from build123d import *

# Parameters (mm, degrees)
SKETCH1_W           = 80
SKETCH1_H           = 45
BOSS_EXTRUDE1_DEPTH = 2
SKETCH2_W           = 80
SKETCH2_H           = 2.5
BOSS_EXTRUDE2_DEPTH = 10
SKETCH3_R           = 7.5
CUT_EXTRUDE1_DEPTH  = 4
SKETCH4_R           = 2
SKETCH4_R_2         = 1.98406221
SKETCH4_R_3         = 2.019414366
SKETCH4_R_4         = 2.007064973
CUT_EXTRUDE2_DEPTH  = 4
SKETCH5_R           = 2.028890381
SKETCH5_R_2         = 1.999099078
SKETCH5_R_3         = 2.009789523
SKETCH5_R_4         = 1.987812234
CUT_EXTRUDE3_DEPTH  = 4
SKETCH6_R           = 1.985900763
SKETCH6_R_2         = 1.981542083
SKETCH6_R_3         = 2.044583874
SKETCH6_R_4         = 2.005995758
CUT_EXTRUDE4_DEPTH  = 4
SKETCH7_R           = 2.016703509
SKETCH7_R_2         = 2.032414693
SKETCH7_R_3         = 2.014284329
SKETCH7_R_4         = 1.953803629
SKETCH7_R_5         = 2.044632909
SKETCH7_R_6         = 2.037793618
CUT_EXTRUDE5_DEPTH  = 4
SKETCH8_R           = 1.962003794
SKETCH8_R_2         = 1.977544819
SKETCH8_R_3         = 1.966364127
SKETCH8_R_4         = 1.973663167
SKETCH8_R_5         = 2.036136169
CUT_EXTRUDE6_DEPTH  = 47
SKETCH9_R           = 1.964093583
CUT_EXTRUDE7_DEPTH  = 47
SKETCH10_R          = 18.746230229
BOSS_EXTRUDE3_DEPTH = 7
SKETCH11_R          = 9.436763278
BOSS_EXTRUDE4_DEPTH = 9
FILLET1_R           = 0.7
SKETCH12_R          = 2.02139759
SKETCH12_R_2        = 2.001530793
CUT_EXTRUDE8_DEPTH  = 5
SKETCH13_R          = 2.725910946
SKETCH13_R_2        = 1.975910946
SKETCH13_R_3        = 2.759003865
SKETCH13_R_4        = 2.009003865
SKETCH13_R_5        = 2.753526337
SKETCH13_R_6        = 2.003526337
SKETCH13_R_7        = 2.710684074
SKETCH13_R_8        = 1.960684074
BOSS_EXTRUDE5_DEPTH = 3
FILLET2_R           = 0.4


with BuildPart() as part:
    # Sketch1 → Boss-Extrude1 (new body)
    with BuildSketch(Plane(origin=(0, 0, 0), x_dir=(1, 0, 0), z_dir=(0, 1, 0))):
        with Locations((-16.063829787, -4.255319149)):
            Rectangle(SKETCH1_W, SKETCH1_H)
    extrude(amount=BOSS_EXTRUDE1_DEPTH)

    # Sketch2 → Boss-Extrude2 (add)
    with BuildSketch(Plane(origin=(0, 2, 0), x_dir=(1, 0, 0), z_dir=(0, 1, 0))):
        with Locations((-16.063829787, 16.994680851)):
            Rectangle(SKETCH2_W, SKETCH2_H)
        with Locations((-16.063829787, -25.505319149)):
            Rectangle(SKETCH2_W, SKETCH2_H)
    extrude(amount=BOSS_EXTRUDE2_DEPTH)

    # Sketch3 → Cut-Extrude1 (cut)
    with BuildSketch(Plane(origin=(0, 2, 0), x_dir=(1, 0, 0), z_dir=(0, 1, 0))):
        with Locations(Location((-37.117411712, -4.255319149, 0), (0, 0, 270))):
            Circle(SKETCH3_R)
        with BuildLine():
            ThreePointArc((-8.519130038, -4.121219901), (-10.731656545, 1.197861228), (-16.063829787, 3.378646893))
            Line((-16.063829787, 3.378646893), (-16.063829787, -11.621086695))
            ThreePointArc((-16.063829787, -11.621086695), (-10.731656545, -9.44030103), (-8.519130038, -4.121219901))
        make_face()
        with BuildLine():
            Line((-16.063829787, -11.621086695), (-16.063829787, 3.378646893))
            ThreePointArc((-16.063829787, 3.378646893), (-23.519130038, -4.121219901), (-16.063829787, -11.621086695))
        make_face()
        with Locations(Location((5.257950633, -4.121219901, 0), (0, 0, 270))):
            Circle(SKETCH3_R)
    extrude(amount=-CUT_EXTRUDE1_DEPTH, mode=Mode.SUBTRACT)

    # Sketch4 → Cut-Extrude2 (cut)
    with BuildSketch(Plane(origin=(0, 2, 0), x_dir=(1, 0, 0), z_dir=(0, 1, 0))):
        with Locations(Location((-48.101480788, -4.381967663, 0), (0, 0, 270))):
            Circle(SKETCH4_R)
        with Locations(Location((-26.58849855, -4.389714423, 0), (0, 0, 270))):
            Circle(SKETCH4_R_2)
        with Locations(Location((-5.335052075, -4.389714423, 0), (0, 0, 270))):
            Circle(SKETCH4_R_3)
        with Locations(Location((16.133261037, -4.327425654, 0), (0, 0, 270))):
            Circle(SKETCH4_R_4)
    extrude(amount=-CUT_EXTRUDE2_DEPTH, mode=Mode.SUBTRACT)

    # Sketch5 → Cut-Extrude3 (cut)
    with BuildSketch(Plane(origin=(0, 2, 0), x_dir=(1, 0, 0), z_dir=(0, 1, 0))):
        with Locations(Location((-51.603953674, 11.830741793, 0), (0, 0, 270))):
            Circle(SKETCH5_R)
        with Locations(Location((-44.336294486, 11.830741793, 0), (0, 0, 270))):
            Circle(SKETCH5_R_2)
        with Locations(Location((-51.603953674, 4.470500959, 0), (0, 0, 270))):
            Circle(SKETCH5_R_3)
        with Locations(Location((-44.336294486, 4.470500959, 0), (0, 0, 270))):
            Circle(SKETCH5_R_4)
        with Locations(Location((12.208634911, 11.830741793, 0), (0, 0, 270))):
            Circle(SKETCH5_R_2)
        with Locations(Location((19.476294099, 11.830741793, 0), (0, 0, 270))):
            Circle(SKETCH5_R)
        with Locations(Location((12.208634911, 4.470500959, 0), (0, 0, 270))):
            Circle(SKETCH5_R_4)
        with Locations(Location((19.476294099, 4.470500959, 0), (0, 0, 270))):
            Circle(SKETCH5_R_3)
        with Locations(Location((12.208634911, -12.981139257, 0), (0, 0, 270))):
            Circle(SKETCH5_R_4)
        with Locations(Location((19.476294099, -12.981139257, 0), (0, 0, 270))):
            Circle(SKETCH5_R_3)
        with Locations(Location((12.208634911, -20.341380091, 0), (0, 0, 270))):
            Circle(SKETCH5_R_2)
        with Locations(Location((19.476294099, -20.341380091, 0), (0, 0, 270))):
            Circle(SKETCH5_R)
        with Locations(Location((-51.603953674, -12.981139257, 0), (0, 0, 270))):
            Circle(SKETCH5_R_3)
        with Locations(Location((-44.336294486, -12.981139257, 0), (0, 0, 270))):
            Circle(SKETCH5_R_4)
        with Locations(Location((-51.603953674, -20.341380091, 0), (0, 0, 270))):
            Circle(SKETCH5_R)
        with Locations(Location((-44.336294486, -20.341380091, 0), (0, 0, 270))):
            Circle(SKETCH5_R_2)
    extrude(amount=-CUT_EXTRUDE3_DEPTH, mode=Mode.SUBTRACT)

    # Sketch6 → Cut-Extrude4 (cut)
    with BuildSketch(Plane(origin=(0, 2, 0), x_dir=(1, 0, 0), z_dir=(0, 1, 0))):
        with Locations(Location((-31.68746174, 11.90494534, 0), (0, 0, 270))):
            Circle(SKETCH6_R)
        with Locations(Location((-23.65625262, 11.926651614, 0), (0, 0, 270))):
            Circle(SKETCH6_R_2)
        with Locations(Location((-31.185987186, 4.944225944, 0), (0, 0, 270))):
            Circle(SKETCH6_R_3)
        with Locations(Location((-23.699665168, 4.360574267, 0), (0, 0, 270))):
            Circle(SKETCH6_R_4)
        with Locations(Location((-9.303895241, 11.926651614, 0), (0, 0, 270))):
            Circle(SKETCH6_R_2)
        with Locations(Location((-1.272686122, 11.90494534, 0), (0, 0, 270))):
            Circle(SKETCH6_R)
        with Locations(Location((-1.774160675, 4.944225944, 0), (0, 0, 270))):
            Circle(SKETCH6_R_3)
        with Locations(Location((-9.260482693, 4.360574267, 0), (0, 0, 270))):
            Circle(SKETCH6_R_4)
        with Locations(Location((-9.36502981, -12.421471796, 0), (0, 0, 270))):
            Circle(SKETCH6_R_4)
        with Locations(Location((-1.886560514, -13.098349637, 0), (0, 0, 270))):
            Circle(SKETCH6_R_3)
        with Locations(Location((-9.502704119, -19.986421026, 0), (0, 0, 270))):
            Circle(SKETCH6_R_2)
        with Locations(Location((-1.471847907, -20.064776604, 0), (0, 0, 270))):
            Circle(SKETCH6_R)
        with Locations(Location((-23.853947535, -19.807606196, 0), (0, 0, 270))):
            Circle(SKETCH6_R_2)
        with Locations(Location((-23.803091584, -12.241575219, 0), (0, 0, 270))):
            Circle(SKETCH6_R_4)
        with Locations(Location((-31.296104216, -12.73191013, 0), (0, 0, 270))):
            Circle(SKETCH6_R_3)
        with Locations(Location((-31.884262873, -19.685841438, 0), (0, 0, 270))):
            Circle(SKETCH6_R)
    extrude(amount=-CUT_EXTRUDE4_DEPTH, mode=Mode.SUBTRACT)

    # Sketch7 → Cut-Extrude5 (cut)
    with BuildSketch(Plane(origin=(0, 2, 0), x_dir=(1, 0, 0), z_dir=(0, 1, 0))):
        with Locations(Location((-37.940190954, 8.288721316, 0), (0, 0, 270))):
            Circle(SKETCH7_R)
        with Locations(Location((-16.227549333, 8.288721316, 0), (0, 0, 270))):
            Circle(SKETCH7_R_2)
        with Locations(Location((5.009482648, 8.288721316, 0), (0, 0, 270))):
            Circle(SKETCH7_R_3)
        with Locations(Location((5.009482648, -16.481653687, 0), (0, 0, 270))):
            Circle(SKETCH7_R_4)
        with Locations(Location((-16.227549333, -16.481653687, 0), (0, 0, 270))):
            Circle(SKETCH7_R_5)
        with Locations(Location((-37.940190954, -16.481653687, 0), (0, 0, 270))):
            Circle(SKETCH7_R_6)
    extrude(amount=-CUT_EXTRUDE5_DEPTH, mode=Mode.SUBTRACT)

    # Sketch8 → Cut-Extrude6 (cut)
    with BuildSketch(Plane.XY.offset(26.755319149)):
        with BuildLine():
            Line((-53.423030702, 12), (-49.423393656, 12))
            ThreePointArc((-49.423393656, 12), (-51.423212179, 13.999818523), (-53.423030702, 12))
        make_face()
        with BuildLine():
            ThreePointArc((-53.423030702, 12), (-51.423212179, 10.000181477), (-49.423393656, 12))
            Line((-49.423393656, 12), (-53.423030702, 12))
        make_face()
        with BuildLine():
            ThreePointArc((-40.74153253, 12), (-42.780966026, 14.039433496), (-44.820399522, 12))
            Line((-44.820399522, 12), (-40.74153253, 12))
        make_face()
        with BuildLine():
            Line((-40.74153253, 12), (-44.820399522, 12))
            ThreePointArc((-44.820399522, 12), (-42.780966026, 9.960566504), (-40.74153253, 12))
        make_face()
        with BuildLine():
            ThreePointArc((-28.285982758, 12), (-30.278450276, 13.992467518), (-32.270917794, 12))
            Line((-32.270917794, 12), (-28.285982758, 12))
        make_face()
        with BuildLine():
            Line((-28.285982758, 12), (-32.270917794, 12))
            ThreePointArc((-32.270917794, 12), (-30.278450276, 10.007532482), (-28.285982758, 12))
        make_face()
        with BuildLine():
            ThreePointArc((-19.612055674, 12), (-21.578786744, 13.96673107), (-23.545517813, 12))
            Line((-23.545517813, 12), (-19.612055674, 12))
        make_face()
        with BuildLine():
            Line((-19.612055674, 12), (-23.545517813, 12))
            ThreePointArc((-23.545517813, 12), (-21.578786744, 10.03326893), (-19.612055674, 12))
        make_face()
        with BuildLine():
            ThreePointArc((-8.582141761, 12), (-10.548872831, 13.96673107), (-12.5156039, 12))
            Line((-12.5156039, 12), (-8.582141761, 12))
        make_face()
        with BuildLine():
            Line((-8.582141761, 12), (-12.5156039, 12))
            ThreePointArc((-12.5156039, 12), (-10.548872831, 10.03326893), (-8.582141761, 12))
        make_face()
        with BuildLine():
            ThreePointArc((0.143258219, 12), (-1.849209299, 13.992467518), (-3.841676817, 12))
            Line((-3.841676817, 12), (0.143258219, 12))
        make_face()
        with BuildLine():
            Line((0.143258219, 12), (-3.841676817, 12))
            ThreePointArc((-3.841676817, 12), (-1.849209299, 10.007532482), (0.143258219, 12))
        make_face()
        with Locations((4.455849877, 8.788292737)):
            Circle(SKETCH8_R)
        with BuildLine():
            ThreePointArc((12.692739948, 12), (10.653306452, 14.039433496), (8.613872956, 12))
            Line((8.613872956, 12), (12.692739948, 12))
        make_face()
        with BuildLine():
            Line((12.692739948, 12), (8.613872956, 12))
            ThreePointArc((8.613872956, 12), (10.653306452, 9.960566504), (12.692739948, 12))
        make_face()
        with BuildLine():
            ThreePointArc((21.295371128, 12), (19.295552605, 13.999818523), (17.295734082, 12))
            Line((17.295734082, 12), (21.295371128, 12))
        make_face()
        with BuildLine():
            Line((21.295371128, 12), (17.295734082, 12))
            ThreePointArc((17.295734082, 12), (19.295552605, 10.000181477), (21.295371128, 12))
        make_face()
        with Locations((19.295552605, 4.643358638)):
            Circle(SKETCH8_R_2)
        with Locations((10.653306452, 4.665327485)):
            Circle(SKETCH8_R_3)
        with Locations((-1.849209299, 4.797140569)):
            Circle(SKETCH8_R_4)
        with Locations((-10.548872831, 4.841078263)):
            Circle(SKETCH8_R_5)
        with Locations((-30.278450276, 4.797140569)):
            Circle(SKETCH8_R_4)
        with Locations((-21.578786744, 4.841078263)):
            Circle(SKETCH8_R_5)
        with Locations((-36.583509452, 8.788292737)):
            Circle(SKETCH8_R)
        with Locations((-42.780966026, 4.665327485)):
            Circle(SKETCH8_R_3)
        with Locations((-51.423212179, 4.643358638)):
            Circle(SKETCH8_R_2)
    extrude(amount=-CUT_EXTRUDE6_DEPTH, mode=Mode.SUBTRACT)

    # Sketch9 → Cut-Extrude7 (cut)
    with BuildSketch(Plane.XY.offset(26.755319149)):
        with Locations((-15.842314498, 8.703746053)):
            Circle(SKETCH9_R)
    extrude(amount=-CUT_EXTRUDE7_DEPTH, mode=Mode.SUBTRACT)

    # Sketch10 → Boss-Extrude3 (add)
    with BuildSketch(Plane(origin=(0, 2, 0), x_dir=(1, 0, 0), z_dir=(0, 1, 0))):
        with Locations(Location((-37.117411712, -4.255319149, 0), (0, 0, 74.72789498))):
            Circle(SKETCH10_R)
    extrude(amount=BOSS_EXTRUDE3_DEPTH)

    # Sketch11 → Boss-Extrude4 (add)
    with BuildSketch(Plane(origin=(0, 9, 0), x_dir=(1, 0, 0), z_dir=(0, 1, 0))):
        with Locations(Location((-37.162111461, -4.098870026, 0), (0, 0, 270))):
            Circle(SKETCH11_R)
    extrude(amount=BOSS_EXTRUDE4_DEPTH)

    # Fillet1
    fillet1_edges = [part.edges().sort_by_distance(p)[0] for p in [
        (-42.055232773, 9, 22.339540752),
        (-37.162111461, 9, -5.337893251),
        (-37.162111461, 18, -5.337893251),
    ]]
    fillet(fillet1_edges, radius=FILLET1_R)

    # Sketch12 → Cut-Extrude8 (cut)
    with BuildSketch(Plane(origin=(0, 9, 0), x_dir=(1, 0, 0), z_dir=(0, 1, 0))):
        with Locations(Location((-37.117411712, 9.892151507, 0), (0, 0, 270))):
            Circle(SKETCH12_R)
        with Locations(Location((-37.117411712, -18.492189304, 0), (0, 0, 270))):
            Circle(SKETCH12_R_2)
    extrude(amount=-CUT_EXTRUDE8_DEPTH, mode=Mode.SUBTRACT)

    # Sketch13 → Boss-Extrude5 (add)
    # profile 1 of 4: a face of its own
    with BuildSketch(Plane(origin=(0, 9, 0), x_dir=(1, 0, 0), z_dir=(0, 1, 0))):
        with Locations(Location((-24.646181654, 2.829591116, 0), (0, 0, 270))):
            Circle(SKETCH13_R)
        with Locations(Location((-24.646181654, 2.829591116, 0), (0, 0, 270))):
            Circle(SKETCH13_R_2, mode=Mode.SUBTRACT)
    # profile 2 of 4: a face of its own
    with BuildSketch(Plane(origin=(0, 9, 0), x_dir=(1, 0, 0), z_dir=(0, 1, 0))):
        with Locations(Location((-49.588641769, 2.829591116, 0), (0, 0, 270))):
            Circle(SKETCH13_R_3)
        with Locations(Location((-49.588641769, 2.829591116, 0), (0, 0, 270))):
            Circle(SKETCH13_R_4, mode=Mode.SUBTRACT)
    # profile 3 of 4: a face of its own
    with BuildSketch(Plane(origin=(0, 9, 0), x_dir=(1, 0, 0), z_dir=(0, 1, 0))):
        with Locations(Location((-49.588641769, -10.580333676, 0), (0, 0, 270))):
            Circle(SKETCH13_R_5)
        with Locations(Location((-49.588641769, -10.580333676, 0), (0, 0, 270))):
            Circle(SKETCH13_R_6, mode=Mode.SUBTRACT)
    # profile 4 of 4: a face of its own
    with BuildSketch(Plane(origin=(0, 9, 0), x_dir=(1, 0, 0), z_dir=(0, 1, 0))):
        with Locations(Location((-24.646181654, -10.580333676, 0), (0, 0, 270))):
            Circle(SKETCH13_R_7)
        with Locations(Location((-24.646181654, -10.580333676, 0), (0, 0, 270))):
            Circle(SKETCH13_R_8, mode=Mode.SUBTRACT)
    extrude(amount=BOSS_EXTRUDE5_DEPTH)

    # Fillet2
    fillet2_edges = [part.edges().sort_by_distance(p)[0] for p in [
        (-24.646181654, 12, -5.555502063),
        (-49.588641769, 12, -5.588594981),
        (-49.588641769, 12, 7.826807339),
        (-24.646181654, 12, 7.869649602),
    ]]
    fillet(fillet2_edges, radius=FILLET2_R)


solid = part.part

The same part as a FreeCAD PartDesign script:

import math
import FreeCAD as App
import Part
import Sketcher


def edges_at(feature, points):
    """Names of the edges that pass closest to the given points."""
    edges = feature.Shape.Edges
    near = lambda p: min(range(len(edges)), key=lambda i: edges[i].distToShape(Part.Vertex(*p))[0])
    return sorted({f"Edge{near(p) + 1}" for p in points})


def add_polygon(sketch, points):
    """Adds a closed chain of lines whose ends are joined by coincident constraints."""
    first, n = sketch.GeometryCount, len(points)
    for a, b in zip(points, points[1:] + points[:1]):
        sketch.addGeometry(Part.LineSegment(App.Vector(*a, 0), App.Vector(*b, 0)), False)
    for i in range(n):
        sketch.addConstraint(Sketcher.Constraint("Coincident", first + i, 2, first + (i + 1) % n, 1))

doc = App.newDocument("Part")
params = doc.addObject("Spreadsheet::Sheet", "Params")
for row, (alias, value) in enumerate([
    ("sketch1_width", "80 mm"),
    ("sketch1_height", "45 mm"),
    ("pad1_length", "2 mm"),
    ("sketch2_width", "80 mm"),
    ("sketch2_height", "2.5 mm"),
    ("pad2_length", "10 mm"),
    ("sketch3_diameter", "15 mm"),
    ("pocket1_length", "4 mm"),
    ("sketch4_diameter", "4 mm"),
    ("pocket2_length", "4 mm"),
    ("pocket3_length", "4 mm"),
    ("pocket4_length", "4 mm"),
    ("pocket5_length", "4 mm"),
    ("pocket6_length", "47 mm"),
    ("pocket7_length", "47 mm"),
    ("pad3_length", "7 mm"),
    ("pad4_length", "9 mm"),
    ("fillet_radius", "0.7 mm"),
    ("pocket8_length", "5 mm"),
    ("pad5_length", "3 mm"),
    ("fillet2_radius", "0.4 mm"),
], start=1):
    params.set(f"A{row}", alias)
    params.set(f"B{row}", "=" + value)
    params.setAlias(f"B{row}", alias)

body = doc.addObject("PartDesign::Body", "Body")

# Sketch on XZ plane
sketch1 = doc.addObject("Sketcher::SketchObject", "Sketch")
body.addObject(sketch1)
sketch1.AttachmentSupport = (doc.XZ_Plane, [""])
sketch1.MapMode = "FlatFace"
add_polygon(sketch1, [(-56, -18), (-56, 27), (24, 27), (24, -18)])  # lines 0-3
sketch1.addConstraint(Sketcher.Constraint("Vertical", 0))
sketch1.addConstraint(Sketcher.Constraint("Horizontal", 1))
sketch1.addConstraint(Sketcher.Constraint("Vertical", 2))
sketch1.addConstraint(Sketcher.Constraint("Horizontal", 3))
sketch1.addConstraint(Sketcher.Constraint("DistanceX", 1, 1, 1, 2, 80.0))
sketch1.addConstraint(Sketcher.Constraint("DistanceY", 0, 1, 0, 2, 45.0))
sketch1.addConstraint(Sketcher.Constraint("DistanceX", 0, 2, -1, 1, 56.06383))
sketch1.addConstraint(Sketcher.Constraint("DistanceY", -1, 1, 0, 2, 26.755319))
sketch1.setExpression("Constraints[8]", "Params.sketch1_width")
sketch1.setExpression("Constraints[9]", "Params.sketch1_height")
pad1 = doc.addObject("PartDesign::Pad", "Pad")
body.addObject(pad1)
pad1.Profile = sketch1
pad1.setExpression("Length", "Params.pad1_length")
pad1.Reversed = True

# Sketch on XZ plane
sketch2 = doc.addObject("Sketcher::SketchObject", "Sketch001")
body.addObject(sketch2)
sketch2.AttachmentSupport = (doc.XZ_Plane, [""])
sketch2.MapMode = "FlatFace"
sketch2.AttachmentOffset = App.Placement(App.Vector(0, 0, -2), App.Rotation())
add_polygon(sketch2, [(-56.1, -18.2), (-56.1, -15.7), (23.9, -15.7), (23.9, -18.2)])  # lines 0-3
add_polygon(sketch2, [(-56.1, 24.3), (-56.1, 26.8), (23.9, 26.8), (23.9, 24.3)])  # lines 4-7
sketch2.addConstraint(Sketcher.Constraint("Vertical", 0))
sketch2.addConstraint(Sketcher.Constraint("Horizontal", 1))
sketch2.addConstraint(Sketcher.Constraint("Vertical", 2))
sketch2.addConstraint(Sketcher.Constraint("Horizontal", 3))
sketch2.addConstraint(Sketcher.Constraint("Vertical", 4))
sketch2.addConstraint(Sketcher.Constraint("Horizontal", 5))
sketch2.addConstraint(Sketcher.Constraint("Vertical", 6))
sketch2.addConstraint(Sketcher.Constraint("Horizontal", 7))
sketch2.addConstraint(Sketcher.Constraint("Vertical", 3, 2, 4, 2))
sketch2.addConstraint(Sketcher.Constraint("Vertical", 2, 2, 5, 2))
sketch2.addConstraint(Sketcher.Constraint("Equal", 2, 4))
sketch2.addConstraint(Sketcher.Constraint("DistanceX", 1, 1, 1, 2, 80.0))
sketch2.addConstraint(Sketcher.Constraint("DistanceY", 0, 1, 0, 2, 2.5))
sketch2.addConstraint(Sketcher.Constraint("DistanceY", 3, 2, 4, 2, 45.0))
sketch2.addConstraint(Sketcher.Constraint("DistanceX", 0, 2, -1, 1, 56.06383))
sketch2.addConstraint(Sketcher.Constraint("DistanceY", 0, 2, -1, 1, 15.744681))
sketch2.setExpression("Constraints[19]", "Params.sketch2_width")
sketch2.setExpression("Constraints[20]", "Params.sketch2_height")
pad2 = doc.addObject("PartDesign::Pad", "Pad001")
body.addObject(pad2)
pad2.Profile = sketch2
pad2.setExpression("Length", "Params.pad2_length")
pad2.Reversed = True

# Sketch on XZ plane
sketch3 = doc.addObject("Sketcher::SketchObject", "Sketch002")
body.addObject(sketch3)
sketch3.AttachmentSupport = (doc.XZ_Plane, [""])
sketch3.MapMode = "FlatFace"
sketch3.AttachmentOffset = App.Placement(App.Vector(0, 0, -2), App.Rotation())
sketch3.addGeometry(Part.Circle(App.Vector(-37, 4, 0), App.Vector(0, 0, 1), 8), False)
sketch3.addGeometry(Part.ArcOfCircle(Part.Circle(App.Vector(-16, 4, 0), App.Vector(0, 0, 1), 8), math.radians(-90), math.radians(0)), False)
sketch3.addGeometry(Part.ArcOfCircle(Part.Circle(App.Vector(-16, 4, 0), App.Vector(0, 0, 1), 8), math.radians(90), math.radians(270)), False)
sketch3.addGeometry(Part.ArcOfCircle(Part.Circle(App.Vector(-16, 4, 0), App.Vector(0, 0, 1), 8), math.radians(0), math.radians(90)), False)
sketch3.addGeometry(Part.Circle(App.Vector(5, 4, 0), App.Vector(0, 0, 1), 8), False)
sketch3.addConstraint(Sketcher.Constraint("Tangent", 1, 1, 2, 2))
sketch3.addConstraint(Sketcher.Constraint("Tangent", 2, 1, 3, 2))
sketch3.addConstraint(Sketcher.Constraint("Tangent", 3, 1, 1, 2))
sketch3.addConstraint(Sketcher.Constraint("Equal", 0, 1))
sketch3.addConstraint(Sketcher.Constraint("Equal", 3, 4))
sketch3.addConstraint(Sketcher.Constraint("Horizontal", 3, 3, 4, 3))
sketch3.addConstraint(Sketcher.Constraint("Horizontal", 4, 3, 3, 1))
sketch3.addConstraint(Sketcher.Constraint("Vertical", 1, 1, 2, 1))
sketch3.addConstraint(Sketcher.Constraint("Diameter", 0, 15.0))
sketch3.addConstraint(Sketcher.Constraint("DistanceY", 1, 3, 0, 3, 0.134099))
sketch3.addConstraint(Sketcher.Constraint("DistanceX", 1, 1, 1, 3, 0.0447))
sketch3.addConstraint(Sketcher.Constraint("DistanceX", 0, 3, -1, 1, 37.117412))
sketch3.addConstraint(Sketcher.Constraint("DistanceY", -1, 1, 0, 3, 4.255319))
sketch3.addConstraint(Sketcher.Constraint("DistanceX", 1, 3, -1, 1, 16.01913))
sketch3.addConstraint(Sketcher.Constraint("DistanceX", -1, 1, 4, 3, 5.257951))
sketch3.setExpression("Constraints[8]", "Params.sketch3_diameter")
pocket1 = doc.addObject("PartDesign::Pocket", "Pocket")
body.addObject(pocket1)
pocket1.Profile = sketch3
pocket1.setExpression("Length", "Params.pocket1_length")
pocket1.Reversed = True

# Sketch on XZ plane
sketch4 = doc.addObject("Sketcher::SketchObject", "Sketch003")
body.addObject(sketch4)
sketch4.AttachmentSupport = (doc.XZ_Plane, [""])
sketch4.MapMode = "FlatFace"
sketch4.AttachmentOffset = App.Placement(App.Vector(0, 0, -2), App.Rotation())
sketch4.addGeometry(Part.Circle(App.Vector(-48.1, 4.4, 0), App.Vector(0, 0, 1), 2), False)
sketch4.addGeometry(Part.Circle(App.Vector(-26.6, 4.4, 0), App.Vector(0, 0, 1), 2), False)
sketch4.addGeometry(Part.Circle(App.Vector(-5.3, 4.4, 0), App.Vector(0, 0, 1), 2), False)
sketch4.addGeometry(Part.Circle(App.Vector(16.1, 4.3, 0), App.Vector(0, 0, 1), 2), False)
sketch4.addConstraint(Sketcher.Constraint("Horizontal", 1, 3, 2, 3))
sketch4.addConstraint(Sketcher.Constraint("Diameter", 0, 4.0))
sketch4.addConstraint(Sketcher.Constraint("Diameter", 2, 4.038829))
sketch4.addConstraint(Sketcher.Constraint("Diameter", 3, 4.01413))
sketch4.addConstraint(Sketcher.Constraint("Diameter", 1, 3.968124))
sketch4.addConstraint(Sketcher.Constraint("DistanceX", 1, 3, -1, 1, 26.588499))
sketch4.addConstraint(Sketcher.Constraint("DistanceX", 0, 3, -1, 1, 48.101481))
sketch4.addConstraint(Sketcher.Constraint("DistanceX", -1, 1, 3, 3, 16.133261))
sketch4.addConstraint(Sketcher.Constraint("DistanceX", 0, 3, 2, 3, 42.766429))
sketch4.addConstraint(Sketcher.Constraint("DistanceY", 3, 3, 2, 3, 0.062289))
sketch4.addConstraint(Sketcher.Constraint("DistanceY", -1, 1, 0, 3, 4.381968))
sketch4.addConstraint(Sketcher.Constraint("DistanceY", -1, 1, 1, 3, 4.389714))
sketch4.setExpression("Constraints[1]", "Params.sketch4_diameter")
pocket2 = doc.addObject("PartDesign::Pocket", "Pocket001")
body.addObject(pocket2)
pocket2.Profile = sketch4
pocket2.setExpression("Length", "Params.pocket2_length")
pocket2.Reversed = True

# Sketch on XZ plane
sketch5 = doc.addObject("Sketcher::SketchObject", "Sketch004")
body.addObject(sketch5)
sketch5.AttachmentSupport = (doc.XZ_Plane, [""])
sketch5.MapMode = "FlatFace"
sketch5.AttachmentOffset = App.Placement(App.Vector(0, 0, -2), App.Rotation())
sketch5.addGeometry(Part.Circle(App.Vector(-51.6, -11.8, 0), App.Vector(0, 0, 1), 2), False)
sketch5.addGeometry(Part.Circle(App.Vector(-44.3, -11.8, 0), App.Vector(0, 0, 1), 2), False)
sketch5.addGeometry(Part.Circle(App.Vector(-51.6, -4.5, 0), App.Vector(0, 0, 1), 2), False)
sketch5.addGeometry(Part.Circle(App.Vector(-44.3, -4.5, 0), App.Vector(0, 0, 1), 2), False)
sketch5.addGeometry(Part.Circle(App.Vector(12.2, -11.8, 0), App.Vector(0, 0, 1), 2), False)
sketch5.addGeometry(Part.Circle(App.Vector(19.5, -11.8, 0), App.Vector(0, 0, 1), 2), False)
sketch5.addGeometry(Part.Circle(App.Vector(12.2, -4.5, 0), App.Vector(0, 0, 1), 2), False)
sketch5.addGeometry(Part.Circle(App.Vector(19.5, -4.5, 0), App.Vector(0, 0, 1), 2), False)
sketch5.addGeometry(Part.Circle(App.Vector(12.2, 13, 0), App.Vector(0, 0, 1), 2), False)
sketch5.addGeometry(Part.Circle(App.Vector(19.5, 13, 0), App.Vector(0, 0, 1), 2), False)
sketch5.addGeometry(Part.Circle(App.Vector(12.2, 20.3, 0), App.Vector(0, 0, 1), 2), False)
sketch5.addGeometry(Part.Circle(App.Vector(19.5, 20.3, 0), App.Vector(0, 0, 1), 2), False)
sketch5.addGeometry(Part.Circle(App.Vector(-51.6, 13, 0), App.Vector(0, 0, 1), 2), False)
sketch5.addGeometry(Part.Circle(App.Vector(-44.3, 13, 0), App.Vector(0, 0, 1), 2), False)
sketch5.addGeometry(Part.Circle(App.Vector(-51.6, 20.3, 0), App.Vector(0, 0, 1), 2), False)
sketch5.addGeometry(Part.Circle(App.Vector(-44.3, 20.3, 0), App.Vector(0, 0, 1), 2), False)
sketch5.addConstraint(Sketcher.Constraint("Equal", 1, 4))
sketch5.addConstraint(Sketcher.Constraint("Equal", 0, 5))
sketch5.addConstraint(Sketcher.Constraint("Equal", 3, 6))
sketch5.addConstraint(Sketcher.Constraint("Equal", 2, 7))
sketch5.addConstraint(Sketcher.Constraint("Equal", 6, 8))
sketch5.addConstraint(Sketcher.Constraint("Equal", 7, 9))
sketch5.addConstraint(Sketcher.Constraint("Equal", 4, 10))
sketch5.addConstraint(Sketcher.Constraint("Equal", 5, 11))
sketch5.addConstraint(Sketcher.Constraint("Equal", 9, 12))
sketch5.addConstraint(Sketcher.Constraint("Equal", 8, 13))
sketch5.addConstraint(Sketcher.Constraint("Equal", 11, 14))
sketch5.addConstraint(Sketcher.Constraint("Equal", 10, 15))
sketch5.addConstraint(Sketcher.Constraint("Horizontal", 0, 3, 1, 3))
sketch5.addConstraint(Sketcher.Constraint("Horizontal", 2, 3, 3, 3))
sketch5.addConstraint(Sketcher.Constraint("Horizontal", 1, 3, 4, 3))
sketch5.addConstraint(Sketcher.Constraint("Horizontal", 4, 3, 5, 3))
sketch5.addConstraint(Sketcher.Constraint("Horizontal", 3, 3, 6, 3))
sketch5.addConstraint(Sketcher.Constraint("Horizontal", 6, 3, 7, 3))
sketch5.addConstraint(Sketcher.Constraint("Horizontal", 8, 3, 9, 3))
sketch5.addConstraint(Sketcher.Constraint("Horizontal", 10, 3, 11, 3))
sketch5.addConstraint(Sketcher.Constraint("Horizontal", 9, 3, 12, 3))
sketch5.addConstraint(Sketcher.Constraint("Horizontal", 12, 3, 13, 3))
sketch5.addConstraint(Sketcher.Constraint("Horizontal", 11, 3, 14, 3))
sketch5.addConstraint(Sketcher.Constraint("Horizontal", 14, 3, 15, 3))
sketch5.addConstraint(Sketcher.Constraint("Vertical", 0, 3, 2, 3))
sketch5.addConstraint(Sketcher.Constraint("Vertical", 1, 3, 3, 3))
sketch5.addConstraint(Sketcher.Constraint("Vertical", 4, 3, 6, 3))
sketch5.addConstraint(Sketcher.Constraint("Vertical", 5, 3, 7, 3))
sketch5.addConstraint(Sketcher.Constraint("Vertical", 6, 3, 8, 3))
sketch5.addConstraint(Sketcher.Constraint("Vertical", 7, 3, 9, 3))
sketch5.addConstraint(Sketcher.Constraint("Vertical", 8, 3, 10, 3))
sketch5.addConstraint(Sketcher.Constraint("Vertical", 9, 3, 11, 3))
sketch5.addConstraint(Sketcher.Constraint("Vertical", 2, 3, 12, 3))
sketch5.addConstraint(Sketcher.Constraint("Vertical", 3, 3, 13, 3))
sketch5.addConstraint(Sketcher.Constraint("Vertical", 12, 3, 14, 3))
sketch5.addConstraint(Sketcher.Constraint("Vertical", 13, 3, 15, 3))
sketch5.addConstraint(Sketcher.Constraint("Diameter", 1, 3.998198))
sketch5.addConstraint(Sketcher.Constraint("Diameter", 0, 4.057781))
sketch5.addConstraint(Sketcher.Constraint("Diameter", 2, 4.019579))
sketch5.addConstraint(Sketcher.Constraint("Diameter", 3, 3.975624))
sketch5.addConstraint(Sketcher.Constraint("DistanceY", 2, 3, -1, 1, 4.470501))
sketch5.addConstraint(Sketcher.Constraint("DistanceY", 0, 3, -1, 1, 11.830742))
sketch5.addConstraint(Sketcher.Constraint("DistanceY", -1, 1, 8, 3, 12.981139))
sketch5.addConstraint(Sketcher.Constraint("DistanceY", -1, 1, 10, 3, 20.34138))
sketch5.addConstraint(Sketcher.Constraint("DistanceX", 0, 3, 1, 3, 7.267659))
sketch5.addConstraint(Sketcher.Constraint("DistanceX", 1, 3, 4, 3, 56.544929))
sketch5.addConstraint(Sketcher.Constraint("DistanceX", 4, 3, 5, 3, 7.267659))
sketch5.addConstraint(Sketcher.Constraint("DistanceX", 0, 3, -1, 1, 51.603954))
pocket3 = doc.addObject("PartDesign::Pocket", "Pocket002")
body.addObject(pocket3)
pocket3.Profile = sketch5
pocket3.setExpression("Length", "Params.pocket3_length")
pocket3.Reversed = True

# Sketch on XZ plane
sketch6 = doc.addObject("Sketcher::SketchObject", "Sketch005")
body.addObject(sketch6)
sketch6.AttachmentSupport = (doc.XZ_Plane, [""])
sketch6.MapMode = "FlatFace"
sketch6.AttachmentOffset = App.Placement(App.Vector(0, 0, -2), App.Rotation())
sketch6.addGeometry(Part.Circle(App.Vector(-31.7, -11.9, 0), App.Vector(0, 0, 1), 2), False)
sketch6.addGeometry(Part.Circle(App.Vector(-23.7, -11.9, 0), App.Vector(0, 0, 1), 2), False)
sketch6.addGeometry(Part.Circle(App.Vector(-31.2, -4.9, 0), App.Vector(0, 0, 1), 2), False)
sketch6.addGeometry(Part.Circle(App.Vector(-23.7, -4.4, 0), App.Vector(0, 0, 1), 2), False)
sketch6.addGeometry(Part.Circle(App.Vector(-9.3, -11.9, 0), App.Vector(0, 0, 1), 2), False)
sketch6.addGeometry(Part.Circle(App.Vector(-1.3, -11.9, 0), App.Vector(0, 0, 1), 2), False)
sketch6.addGeometry(Part.Circle(App.Vector(-1.8, -4.9, 0), App.Vector(0, 0, 1), 2), False)
sketch6.addGeometry(Part.Circle(App.Vector(-9.3, -4.4, 0), App.Vector(0, 0, 1), 2), False)
sketch6.addGeometry(Part.Circle(App.Vector(-9.4, 12.4, 0), App.Vector(0, 0, 1), 2), False)
sketch6.addGeometry(Part.Circle(App.Vector(-1.9, 13.1, 0), App.Vector(0, 0, 1), 2), False)
sketch6.addGeometry(Part.Circle(App.Vector(-9.5, 20, 0), App.Vector(0, 0, 1), 2), False)
sketch6.addGeometry(Part.Circle(App.Vector(-1.5, 20.1, 0), App.Vector(0, 0, 1), 2), False)
sketch6.addGeometry(Part.Circle(App.Vector(-23.9, 19.8, 0), App.Vector(0, 0, 1), 2), False)
sketch6.addGeometry(Part.Circle(App.Vector(-23.8, 12.2, 0), App.Vector(0, 0, 1), 2), False)
sketch6.addGeometry(Part.Circle(App.Vector(-31.3, 12.7, 0), App.Vector(0, 0, 1), 2), False)
sketch6.addGeometry(Part.Circle(App.Vector(-31.9, 19.7, 0), App.Vector(0, 0, 1), 2), False)
sketch6.addConstraint(Sketcher.Constraint("Equal", 1, 4))
sketch6.addConstraint(Sketcher.Constraint("Equal", 0, 5))
sketch6.addConstraint(Sketcher.Constraint("Equal", 2, 6))
sketch6.addConstraint(Sketcher.Constraint("Equal", 3, 7))
sketch6.addConstraint(Sketcher.Constraint("Equal", 7, 8))
sketch6.addConstraint(Sketcher.Constraint("Equal", 6, 9))
sketch6.addConstraint(Sketcher.Constraint("Equal", 4, 10))
sketch6.addConstraint(Sketcher.Constraint("Equal", 5, 11))
sketch6.addConstraint(Sketcher.Constraint("Equal", 10, 12))
sketch6.addConstraint(Sketcher.Constraint("Equal", 8, 13))
sketch6.addConstraint(Sketcher.Constraint("Equal", 9, 14))
sketch6.addConstraint(Sketcher.Constraint("Equal", 11, 15))
sketch6.addConstraint(Sketcher.Constraint("Horizontal", 1, 3, 4, 3))
sketch6.addConstraint(Sketcher.Constraint("Horizontal", 0, 3, 5, 3))
sketch6.addConstraint(Sketcher.Constraint("Horizontal", 2, 3, 6, 3))
sketch6.addConstraint(Sketcher.Constraint("Horizontal", 3, 3, 7, 3))
sketch6.addConstraint(Sketcher.Constraint("Diameter", 0, 3.971802))
sketch6.addConstraint(Sketcher.Constraint("Diameter", 3, 4.011992))
sketch6.addConstraint(Sketcher.Constraint("Diameter", 1, 3.963084))
sketch6.addConstraint(Sketcher.Constraint("Diameter", 2, 4.089168))
sketch6.addConstraint(Sketcher.Constraint("DistanceY", 4, 3, 9, 3, 25.025001))
sketch6.addConstraint(Sketcher.Constraint("DistanceX", 2, 3, 5, 3, 29.913301))
sketch6.addConstraint(Sketcher.Constraint("DistanceX", 9, 3, 6, 3, 0.1124))
sketch6.addConstraint(Sketcher.Constraint("DistanceX", 12, 3, 11, 3, 22.3821))
sketch6.addConstraint(Sketcher.Constraint("DistanceY", 2, 3, 13, 3, 17.185801))
sketch6.addConstraint(Sketcher.Constraint("DistanceX", 0, 3, -1, 1, 31.687462))
sketch6.addConstraint(Sketcher.Constraint("DistanceY", 1, 3, -1, 1, 11.926652))
sketch6.addConstraint(Sketcher.Constraint("DistanceX", 6, 3, -1, 1, 1.774161))
sketch6.addConstraint(Sketcher.Constraint("DistanceX", 8, 3, -1, 1, 9.36503))
sketch6.addConstraint(Sketcher.Constraint("DistanceY", -1, 1, 8, 3, 12.421472))
sketch6.addConstraint(Sketcher.Constraint("DistanceY", -1, 1, 10, 3, 19.986421))
sketch6.addConstraint(Sketcher.Constraint("DistanceX", 13, 3, -1, 1, 23.803092))
sketch6.addConstraint(Sketcher.Constraint("DistanceY", -1, 1, 14, 3, 12.73191))
sketch6.addConstraint(Sketcher.Constraint("DistanceY", -1, 1, 15, 3, 19.685841))
sketch6.addConstraint(Sketcher.Constraint("DistanceX", 0, 3, 1, 3, 8.031209))
sketch6.addConstraint(Sketcher.Constraint("DistanceY", 0, 3, 2, 3, 6.960719))
sketch6.addConstraint(Sketcher.Constraint("DistanceY", 2, 3, 3, 3, 0.583652))
sketch6.addConstraint(Sketcher.Constraint("DistanceX", 3, 3, 4, 3, 14.39577))
sketch6.addConstraint(Sketcher.Constraint("DistanceX", 2, 3, 4, 3, 21.882092))
sketch6.addConstraint(Sketcher.Constraint("DistanceX", 1, 3, 7, 3, 14.39577))
sketch6.addConstraint(Sketcher.Constraint("DistanceX", 10, 3, 7, 3, 0.242221))
sketch6.addConstraint(Sketcher.Constraint("DistanceX", 3, 3, 10, 3, 14.196961))
sketch6.addConstraint(Sketcher.Constraint("DistanceX", 8, 3, 11, 3, 7.893182))
sketch6.addConstraint(Sketcher.Constraint("DistanceY", 7, 3, 11, 3, 24.425351))
sketch6.addConstraint(Sketcher.Constraint("DistanceY", 12, 3, 11, 3, 0.25717))
sketch6.addConstraint(Sketcher.Constraint("DistanceX", 14, 3, 3, 3, 7.596439))
sketch6.addConstraint(Sketcher.Constraint("DistanceX", 15, 3, 14, 3, 0.588159))
sketch6.addConstraint(Sketcher.Constraint("DistanceY", 0, 3, -1, 1, 11.904945))
pocket4 = doc.addObject("PartDesign::Pocket", "Pocket003")
body.addObject(pocket4)
pocket4.Profile = sketch6
pocket4.setExpression("Length", "Params.pocket4_length")
pocket4.Reversed = True

# Sketch on XZ plane
sketch7 = doc.addObject("Sketcher::SketchObject", "Sketch006")
body.addObject(sketch7)
sketch7.AttachmentSupport = (doc.XZ_Plane, [""])
sketch7.MapMode = "FlatFace"
sketch7.AttachmentOffset = App.Placement(App.Vector(0, 0, -2), App.Rotation())
sketch7.addGeometry(Part.Circle(App.Vector(-37.9, -8.3, 0), App.Vector(0, 0, 1), 2), False)
sketch7.addGeometry(Part.Circle(App.Vector(-16.2, -8.3, 0), App.Vector(0, 0, 1), 2), False)
sketch7.addGeometry(Part.Circle(App.Vector(5, -8.3, 0), App.Vector(0, 0, 1), 2), False)
sketch7.addGeometry(Part.Circle(App.Vector(5, 16.5, 0), App.Vector(0, 0, 1), 2), False)
sketch7.addGeometry(Part.Circle(App.Vector(-16.2, 16.5, 0), App.Vector(0, 0, 1), 2), False)
sketch7.addGeometry(Part.Circle(App.Vector(-37.9, 16.5, 0), App.Vector(0, 0, 1), 2), False)
sketch7.addConstraint(Sketcher.Constraint("Horizontal", 0, 3, 1, 3))
sketch7.addConstraint(Sketcher.Constraint("Horizontal", 1, 3, 2, 3))
sketch7.addConstraint(Sketcher.Constraint("Horizontal", 3, 3, 4, 3))
sketch7.addConstraint(Sketcher.Constraint("Horizontal", 4, 3, 5, 3))
sketch7.addConstraint(Sketcher.Constraint("Vertical", 2, 3, 3, 3))
sketch7.addConstraint(Sketcher.Constraint("Vertical", 1, 3, 4, 3))
sketch7.addConstraint(Sketcher.Constraint("Vertical", 0, 3, 5, 3))
sketch7.addConstraint(Sketcher.Constraint("Diameter", 1, 4.064829))
sketch7.addConstraint(Sketcher.Constraint("Diameter", 2, 4.028569))
sketch7.addConstraint(Sketcher.Constraint("Diameter", 0, 4.033407))
sketch7.addConstraint(Sketcher.Constraint("Diameter", 3, 3.907607))
sketch7.addConstraint(Sketcher.Constraint("Diameter", 4, 4.089266))
sketch7.addConstraint(Sketcher.Constraint("Diameter", 5, 4.075587))
sketch7.addConstraint(Sketcher.Constraint("DistanceX", 0, 3, -1, 1, 37.940191))
sketch7.addConstraint(Sketcher.Constraint("DistanceY", 0, 3, -1, 1, 8.288721))
sketch7.addConstraint(Sketcher.Constraint("DistanceX", 1, 3, -1, 1, 16.227549))
sketch7.addConstraint(Sketcher.Constraint("DistanceX", 1, 3, 2, 3, 21.237032))
sketch7.addConstraint(Sketcher.Constraint("DistanceY", -1, 1, 3, 3, 16.481654))
pocket5 = doc.addObject("PartDesign::Pocket", "Pocket004")
body.addObject(pocket5)
pocket5.Profile = sketch7
pocket5.setExpression("Length", "Params.pocket5_length")
pocket5.Reversed = True

# Sketch on XY plane
sketch8 = doc.addObject("Sketcher::SketchObject", "Sketch007")
body.addObject(sketch8)
sketch8.AttachmentSupport = (doc.XY_Plane, [""])
sketch8.MapMode = "FlatFace"
sketch8.AttachmentOffset = App.Placement(App.Vector(0, 0, 26.755319), App.Rotation())
sketch8.addGeometry(Part.Circle(App.Vector(-51.4, 12, 0), App.Vector(0, 0, 1), 2), False)
sketch8.addGeometry(Part.Circle(App.Vector(-42.8, 12, 0), App.Vector(0, 0, 1), 2), False)
sketch8.addGeometry(Part.Circle(App.Vector(-30.3, 12, 0), App.Vector(0, 0, 1), 2), False)
sketch8.addGeometry(Part.ArcOfCircle(Part.Circle(App.Vector(-21.6, 12, 0), App.Vector(0, 0, 1), 2), math.radians(0), math.radians(180)), False)
sketch8.addGeometry(Part.ArcOfCircle(Part.Circle(App.Vector(-21.6, 12, 0), App.Vector(0, 0, 1), 2), math.radians(180), math.radians(360)), False)
sketch8.addGeometry(Part.ArcOfCircle(Part.Circle(App.Vector(-10.5, 12, 0), App.Vector(0, 0, 1), 2), math.radians(0), math.radians(180)), False)
sketch8.addGeometry(Part.ArcOfCircle(Part.Circle(App.Vector(-10.5, 12, 0), App.Vector(0, 0, 1), 2), math.radians(180), math.radians(360)), False)
sketch8.addGeometry(Part.Circle(App.Vector(-1.8, 12, 0), App.Vector(0, 0, 1), 2), False)
sketch8.addGeometry(Part.Circle(App.Vector(4.5, 8.8, 0), App.Vector(0, 0, 1), 2), False)
sketch8.addGeometry(Part.Circle(App.Vector(10.7, 12, 0), App.Vector(0, 0, 1), 2), False)
sketch8.addGeometry(Part.Circle(App.Vector(19.3, 12, 0), App.Vector(0, 0, 1), 2), False)
sketch8.addGeometry(Part.Circle(App.Vector(19.3, 4.6, 0), App.Vector(0, 0, 1), 2), False)
sketch8.addGeometry(Part.Circle(App.Vector(10.7, 4.7, 0), App.Vector(0, 0, 1), 2), False)
sketch8.addGeometry(Part.Circle(App.Vector(-1.8, 4.8, 0), App.Vector(0, 0, 1), 2), False)
sketch8.addGeometry(Part.Circle(App.Vector(-10.5, 4.8, 0), App.Vector(0, 0, 1), 2), False)
sketch8.addGeometry(Part.Circle(App.Vector(-30.3, 4.8, 0), App.Vector(0, 0, 1), 2), False)
sketch8.addGeometry(Part.Circle(App.Vector(-21.6, 4.8, 0), App.Vector(0, 0, 1), 2), False)
sketch8.addGeometry(Part.Circle(App.Vector(-36.6, 8.8, 0), App.Vector(0, 0, 1), 2), False)
sketch8.addGeometry(Part.Circle(App.Vector(-42.8, 4.7, 0), App.Vector(0, 0, 1), 2), False)
sketch8.addGeometry(Part.Circle(App.Vector(-51.4, 4.6, 0), App.Vector(0, 0, 1), 2), False)
sketch8.addConstraint(Sketcher.Constraint("Tangent", 3, 1, 4, 2))
sketch8.addConstraint(Sketcher.Constraint("Coincident", 4, 1, 3, 2))
sketch8.addConstraint(Sketcher.Constraint("Tangent", 5, 1, 6, 2))
sketch8.addConstraint(Sketcher.Constraint("Coincident", 6, 1, 5, 2))
sketch8.addConstraint(Sketcher.Constraint("Equal", 4, 5))
sketch8.addConstraint(Sketcher.Constraint("Equal", 2, 7))
sketch8.addConstraint(Sketcher.Constraint("Equal", 1, 9))
sketch8.addConstraint(Sketcher.Constraint("Equal", 0, 10))
sketch8.addConstraint(Sketcher.Constraint("Equal", 13, 15))
sketch8.addConstraint(Sketcher.Constraint("Equal", 14, 16))
sketch8.addConstraint(Sketcher.Constraint("Equal", 8, 17))
sketch8.addConstraint(Sketcher.Constraint("Equal", 12, 18))
sketch8.addConstraint(Sketcher.Constraint("Equal", 11, 19))
sketch8.addConstraint(Sketcher.Constraint("Horizontal", 0, 3, 1, 3))
sketch8.addConstraint(Sketcher.Constraint("Horizontal", 1, 3, 2, 3))
sketch8.addConstraint(Sketcher.Constraint("Horizontal", 2, 3, 3, 3))
sketch8.addConstraint(Sketcher.Constraint("Horizontal", 4, 3, 5, 3))
sketch8.addConstraint(Sketcher.Constraint("Horizontal", 6, 3, 7, 3))
sketch8.addConstraint(Sketcher.Constraint("Horizontal", 7, 3, 9, 3))
sketch8.addConstraint(Sketcher.Constraint("Horizontal", 9, 3, 10, 3))
sketch8.addConstraint(Sketcher.Constraint("Horizontal", 13, 3, 15, 3))
sketch8.addConstraint(Sketcher.Constraint("Horizontal", 14, 3, 16, 3))
sketch8.addConstraint(Sketcher.Constraint("Horizontal", 8, 3, 17, 3))
sketch8.addConstraint(Sketcher.Constraint("Horizontal", 12, 3, 18, 3))
sketch8.addConstraint(Sketcher.Constraint("Horizontal", 11, 3, 19, 3))
sketch8.addConstraint(Sketcher.Constraint("Horizontal", 10, 3, 3, 1))
sketch8.addConstraint(Sketcher.Constraint("Horizontal", 3, 1, 4, 1))
sketch8.addConstraint(Sketcher.Constraint("Horizontal", 4, 1, 5, 1))
sketch8.addConstraint(Sketcher.Constraint("Horizontal", 5, 1, 6, 1))
sketch8.addConstraint(Sketcher.Constraint("Vertical", 10, 3, 11, 3))
sketch8.addConstraint(Sketcher.Constraint("Vertical", 9, 3, 12, 3))
sketch8.addConstraint(Sketcher.Constraint("Vertical", 7, 3, 13, 3))
sketch8.addConstraint(Sketcher.Constraint("Vertical", 6, 3, 14, 3))
sketch8.addConstraint(Sketcher.Constraint("Vertical", 2, 3, 15, 3))
sketch8.addConstraint(Sketcher.Constraint("Vertical", 4, 3, 16, 3))
sketch8.addConstraint(Sketcher.Constraint("Vertical", 1, 3, 18, 3))
sketch8.addConstraint(Sketcher.Constraint("Vertical", 0, 3, 19, 3))
sketch8.addConstraint(Sketcher.Constraint("DistanceY", -1, 1, 0, 3, 12.0))
sketch8.addConstraint(Sketcher.Constraint("Diameter", 11, 3.95509))
sketch8.addConstraint(Sketcher.Constraint("Diameter", 12, 3.932728))
sketch8.addConstraint(Sketcher.Constraint("Radius", 3, 1.966731))
sketch8.addConstraint(Sketcher.Constraint("Diameter", 0, 3.999637))
sketch8.addConstraint(Sketcher.Constraint("Diameter", 1, 4.078867))
sketch8.addConstraint(Sketcher.Constraint("Diameter", 2, 3.984935))
sketch8.addConstraint(Sketcher.Constraint("Diameter", 8, 3.924008))
sketch8.addConstraint(Sketcher.Constraint("Diameter", 13, 3.947326))
sketch8.addConstraint(Sketcher.Constraint("Diameter", 14, 4.072272))
sketch8.addConstraint(Sketcher.Constraint("DistanceX", 2, 3, -1, 1, 30.27845))
sketch8.addConstraint(Sketcher.Constraint("DistanceX", 7, 3, -1, 1, 1.849209))
sketch8.addConstraint(Sketcher.Constraint("DistanceX", -1, 1, 8, 3, 4.45585))
sketch8.addConstraint(Sketcher.Constraint("DistanceY", -1, 1, 11, 3, 4.643359))
sketch8.addConstraint(Sketcher.Constraint("DistanceY", -1, 1, 13, 3, 4.797141))
sketch8.addConstraint(Sketcher.Constraint("DistanceY", -1, 1, 14, 3, 4.841078))
sketch8.addConstraint(Sketcher.Constraint("DistanceX", 17, 3, -1, 1, 36.583509))
sketch8.addConstraint(Sketcher.Constraint("DistanceX", 5, 1, -1, 1, 8.582142))
sketch8.addConstraint(Sketcher.Constraint("DistanceX", 0, 3, 2, 3, 21.144762))
sketch8.addConstraint(Sketcher.Constraint("DistanceX", 1, 3, 3, 3, 21.202179))
sketch8.addConstraint(Sketcher.Constraint("DistanceX", 5, 3, 9, 3, 21.202179))
sketch8.addConstraint(Sketcher.Constraint("DistanceX", 7, 3, 10, 3, 21.144762))
sketch8.addConstraint(Sketcher.Constraint("DistanceY", 11, 3, 12, 3, 0.021969))
sketch8.addConstraint(Sketcher.Constraint("DistanceX", 3, 1, 6, 1, 7.096452))
sketch8.addConstraint(Sketcher.Constraint("DistanceY", -1, 1, 8, 3, 8.788293))
pocket6 = doc.addObject("PartDesign::Pocket", "Pocket005")
body.addObject(pocket6)
pocket6.Profile = sketch8
pocket6.setExpression("Length", "Params.pocket6_length")

# Sketch on XY plane
sketch9 = doc.addObject("Sketcher::SketchObject", "Sketch008")
body.addObject(sketch9)
sketch9.AttachmentSupport = (doc.XY_Plane, [""])
sketch9.MapMode = "FlatFace"
sketch9.AttachmentOffset = App.Placement(App.Vector(0, 0, 26.755319), App.Rotation())
sketch9.addGeometry(Part.Circle(App.Vector(-15.8, 8.7, 0), App.Vector(0, 0, 1), 2), False)
sketch9.addConstraint(Sketcher.Constraint("Diameter", 0, 3.928187))
sketch9.addConstraint(Sketcher.Constraint("DistanceX", 0, 3, -1, 1, 15.842314))
sketch9.addConstraint(Sketcher.Constraint("DistanceY", -1, 1, 0, 3, 8.703746))
pocket7 = doc.addObject("PartDesign::Pocket", "Pocket006")
body.addObject(pocket7)
pocket7.Profile = sketch9
pocket7.setExpression("Length", "Params.pocket7_length")

# Sketch on XZ plane
sketch10 = doc.addObject("Sketcher::SketchObject", "Sketch009")
body.addObject(sketch10)
sketch10.AttachmentSupport = (doc.XZ_Plane, [""])
sketch10.MapMode = "FlatFace"
sketch10.AttachmentOffset = App.Placement(App.Vector(0, 0, -2), App.Rotation())
sketch10.addGeometry(Part.Circle(App.Vector(-37, 4, 0), App.Vector(0, 0, 1), 19), False)
sketch10.addConstraint(Sketcher.Constraint("Diameter", 0, 37.49246))
sketch10.addConstraint(Sketcher.Constraint("DistanceX", 0, 3, -1, 1, 37.117412))
sketch10.addConstraint(Sketcher.Constraint("DistanceY", -1, 1, 0, 3, 4.255319))
pad3 = doc.addObject("PartDesign::Pad", "Pad002")
body.addObject(pad3)
pad3.Profile = sketch10
pad3.setExpression("Length", "Params.pad3_length")
pad3.Reversed = True

# Sketch on XZ plane
sketch11 = doc.addObject("Sketcher::SketchObject", "Sketch010")
body.addObject(sketch11)
sketch11.AttachmentSupport = (doc.XZ_Plane, [""])
sketch11.MapMode = "FlatFace"
sketch11.AttachmentOffset = App.Placement(App.Vector(0, 0, -9), App.Rotation())
sketch11.addGeometry(Part.Circle(App.Vector(-37, 4, 0), App.Vector(0, 0, 1), 9), False)
sketch11.addConstraint(Sketcher.Constraint("Diameter", 0, 18.873527))
sketch11.addConstraint(Sketcher.Constraint("DistanceX", 0, 3, -1, 1, 37.162111))
sketch11.addConstraint(Sketcher.Constraint("DistanceY", -1, 1, 0, 3, 4.09887))
pad4 = doc.addObject("PartDesign::Pad", "Pad003")
body.addObject(pad4)
pad4.Profile = sketch11
pad4.setExpression("Length", "Params.pad4_length")
pad4.Reversed = True
doc.recompute()

fillet = doc.addObject("PartDesign::Fillet", "Fillet")
body.addObject(fillet)
fillet.Base = (pad4, edges_at(pad4, [(-42.055, 9, 22.34), (-37.162, 9, -5.338), (-37.162, 18, -5.338)]))
fillet.setExpression("Radius", "Params.fillet_radius")

# Sketch on XZ plane
sketch12 = doc.addObject("Sketcher::SketchObject", "Sketch011")
body.addObject(sketch12)
sketch12.AttachmentSupport = (doc.XZ_Plane, [""])
sketch12.MapMode = "FlatFace"
sketch12.AttachmentOffset = App.Placement(App.Vector(0, 0, -9), App.Rotation())
sketch12.addGeometry(Part.Circle(App.Vector(-37.1, -9.9, 0), App.Vector(0, 0, 1), 2), False)
sketch12.addGeometry(Part.Circle(App.Vector(-37.1, 18.5, 0), App.Vector(0, 0, 1), 2), False)
sketch12.addConstraint(Sketcher.Constraint("Vertical", 0, 3, 1, 3))
sketch12.addConstraint(Sketcher.Constraint("Diameter", 1, 4.003062))
sketch12.addConstraint(Sketcher.Constraint("Diameter", 0, 4.042795))
sketch12.addConstraint(Sketcher.Constraint("DistanceX", 0, 3, -1, 1, 37.117412))
sketch12.addConstraint(Sketcher.Constraint("DistanceY", 0, 3, -1, 1, 9.892152))
sketch12.addConstraint(Sketcher.Constraint("DistanceY", -1, 1, 1, 3, 18.492189))
pocket8 = doc.addObject("PartDesign::Pocket", "Pocket007")
body.addObject(pocket8)
pocket8.Profile = sketch12
pocket8.setExpression("Length", "Params.pocket8_length")
pocket8.Reversed = True

# Sketch on XZ plane
sketch13 = doc.addObject("Sketcher::SketchObject", "Sketch012")
body.addObject(sketch13)
sketch13.AttachmentSupport = (doc.XZ_Plane, [""])
sketch13.MapMode = "FlatFace"
sketch13.AttachmentOffset = App.Placement(App.Vector(0, 0, -9), App.Rotation())
sketch13.addGeometry(Part.Circle(App.Vector(-24.6, -2.8, 0), App.Vector(0, 0, 1), 2.7), False)
sketch13.addGeometry(Part.Circle(App.Vector(-24.6, -2.8, 0), App.Vector(0, 0, 1), 2), False)
sketch13.addGeometry(Part.Circle(App.Vector(-49.6, -2.8, 0), App.Vector(0, 0, 1), 2.8), False)
sketch13.addGeometry(Part.Circle(App.Vector(-49.6, -2.8, 0), App.Vector(0, 0, 1), 2), False)
sketch13.addGeometry(Part.Circle(App.Vector(-49.6, 10.6, 0), App.Vector(0, 0, 1), 2.8), False)
sketch13.addGeometry(Part.Circle(App.Vector(-49.6, 10.6, 0), App.Vector(0, 0, 1), 2), False)
sketch13.addGeometry(Part.Circle(App.Vector(-24.6, 10.6, 0), App.Vector(0, 0, 1), 2.7), False)
sketch13.addGeometry(Part.Circle(App.Vector(-24.6, 10.6, 0), App.Vector(0, 0, 1), 2), False)
sketch13.addConstraint(Sketcher.Constraint("Coincident", 1, 3, 0, 3))
sketch13.addConstraint(Sketcher.Constraint("Coincident", 3, 3, 2, 3))
sketch13.addConstraint(Sketcher.Constraint("Coincident", 5, 3, 4, 3))
sketch13.addConstraint(Sketcher.Constraint("Coincident", 7, 3, 6, 3))
sketch13.addConstraint(Sketcher.Constraint("Horizontal", 1, 3, 2, 3))
sketch13.addConstraint(Sketcher.Constraint("Horizontal", 5, 3, 6, 3))
sketch13.addConstraint(Sketcher.Constraint("Vertical", 3, 3, 4, 3))
sketch13.addConstraint(Sketcher.Constraint("Vertical", 1, 3, 6, 3))
sketch13.addConstraint(Sketcher.Constraint("Diameter", 0, 5.451822))
sketch13.addConstraint(Sketcher.Constraint("Diameter", 1, 3.951822))
sketch13.addConstraint(Sketcher.Constraint("Diameter", 6, 5.421368))
sketch13.addConstraint(Sketcher.Constraint("Diameter", 7, 3.921368))
sketch13.addConstraint(Sketcher.Constraint("Diameter", 2, 5.518008))
sketch13.addConstraint(Sketcher.Constraint("Diameter", 3, 4.018008))
sketch13.addConstraint(Sketcher.Constraint("Diameter", 4, 5.507053))
sketch13.addConstraint(Sketcher.Constraint("Diameter", 5, 4.007053))
sketch13.addConstraint(Sketcher.Constraint("DistanceX", 0, 3, -1, 1, 24.646182))
sketch13.addConstraint(Sketcher.Constraint("DistanceY", 0, 3, -1, 1, 2.829591))
sketch13.addConstraint(Sketcher.Constraint("DistanceX", 2, 3, -1, 1, 49.588642))
sketch13.addConstraint(Sketcher.Constraint("DistanceY", -1, 1, 4, 3, 10.580334))
pad5 = doc.addObject("PartDesign::Pad", "Pad004")
body.addObject(pad5)
pad5.Profile = sketch13
pad5.setExpression("Length", "Params.pad5_length")
pad5.Reversed = True
doc.recompute()

fillet2 = doc.addObject("PartDesign::Fillet", "Fillet001")
body.addObject(fillet2)
fillet2.Base = (pad5, edges_at(pad5, [
    (-24.646, 12, -5.556),
    (-49.589, 12, -5.589),
    (-49.589, 12, 7.827),
    (-24.646, 12, 7.87),
]))
fillet2.setExpression("Radius", "Params.fillet2_radius")

doc.recompute()
